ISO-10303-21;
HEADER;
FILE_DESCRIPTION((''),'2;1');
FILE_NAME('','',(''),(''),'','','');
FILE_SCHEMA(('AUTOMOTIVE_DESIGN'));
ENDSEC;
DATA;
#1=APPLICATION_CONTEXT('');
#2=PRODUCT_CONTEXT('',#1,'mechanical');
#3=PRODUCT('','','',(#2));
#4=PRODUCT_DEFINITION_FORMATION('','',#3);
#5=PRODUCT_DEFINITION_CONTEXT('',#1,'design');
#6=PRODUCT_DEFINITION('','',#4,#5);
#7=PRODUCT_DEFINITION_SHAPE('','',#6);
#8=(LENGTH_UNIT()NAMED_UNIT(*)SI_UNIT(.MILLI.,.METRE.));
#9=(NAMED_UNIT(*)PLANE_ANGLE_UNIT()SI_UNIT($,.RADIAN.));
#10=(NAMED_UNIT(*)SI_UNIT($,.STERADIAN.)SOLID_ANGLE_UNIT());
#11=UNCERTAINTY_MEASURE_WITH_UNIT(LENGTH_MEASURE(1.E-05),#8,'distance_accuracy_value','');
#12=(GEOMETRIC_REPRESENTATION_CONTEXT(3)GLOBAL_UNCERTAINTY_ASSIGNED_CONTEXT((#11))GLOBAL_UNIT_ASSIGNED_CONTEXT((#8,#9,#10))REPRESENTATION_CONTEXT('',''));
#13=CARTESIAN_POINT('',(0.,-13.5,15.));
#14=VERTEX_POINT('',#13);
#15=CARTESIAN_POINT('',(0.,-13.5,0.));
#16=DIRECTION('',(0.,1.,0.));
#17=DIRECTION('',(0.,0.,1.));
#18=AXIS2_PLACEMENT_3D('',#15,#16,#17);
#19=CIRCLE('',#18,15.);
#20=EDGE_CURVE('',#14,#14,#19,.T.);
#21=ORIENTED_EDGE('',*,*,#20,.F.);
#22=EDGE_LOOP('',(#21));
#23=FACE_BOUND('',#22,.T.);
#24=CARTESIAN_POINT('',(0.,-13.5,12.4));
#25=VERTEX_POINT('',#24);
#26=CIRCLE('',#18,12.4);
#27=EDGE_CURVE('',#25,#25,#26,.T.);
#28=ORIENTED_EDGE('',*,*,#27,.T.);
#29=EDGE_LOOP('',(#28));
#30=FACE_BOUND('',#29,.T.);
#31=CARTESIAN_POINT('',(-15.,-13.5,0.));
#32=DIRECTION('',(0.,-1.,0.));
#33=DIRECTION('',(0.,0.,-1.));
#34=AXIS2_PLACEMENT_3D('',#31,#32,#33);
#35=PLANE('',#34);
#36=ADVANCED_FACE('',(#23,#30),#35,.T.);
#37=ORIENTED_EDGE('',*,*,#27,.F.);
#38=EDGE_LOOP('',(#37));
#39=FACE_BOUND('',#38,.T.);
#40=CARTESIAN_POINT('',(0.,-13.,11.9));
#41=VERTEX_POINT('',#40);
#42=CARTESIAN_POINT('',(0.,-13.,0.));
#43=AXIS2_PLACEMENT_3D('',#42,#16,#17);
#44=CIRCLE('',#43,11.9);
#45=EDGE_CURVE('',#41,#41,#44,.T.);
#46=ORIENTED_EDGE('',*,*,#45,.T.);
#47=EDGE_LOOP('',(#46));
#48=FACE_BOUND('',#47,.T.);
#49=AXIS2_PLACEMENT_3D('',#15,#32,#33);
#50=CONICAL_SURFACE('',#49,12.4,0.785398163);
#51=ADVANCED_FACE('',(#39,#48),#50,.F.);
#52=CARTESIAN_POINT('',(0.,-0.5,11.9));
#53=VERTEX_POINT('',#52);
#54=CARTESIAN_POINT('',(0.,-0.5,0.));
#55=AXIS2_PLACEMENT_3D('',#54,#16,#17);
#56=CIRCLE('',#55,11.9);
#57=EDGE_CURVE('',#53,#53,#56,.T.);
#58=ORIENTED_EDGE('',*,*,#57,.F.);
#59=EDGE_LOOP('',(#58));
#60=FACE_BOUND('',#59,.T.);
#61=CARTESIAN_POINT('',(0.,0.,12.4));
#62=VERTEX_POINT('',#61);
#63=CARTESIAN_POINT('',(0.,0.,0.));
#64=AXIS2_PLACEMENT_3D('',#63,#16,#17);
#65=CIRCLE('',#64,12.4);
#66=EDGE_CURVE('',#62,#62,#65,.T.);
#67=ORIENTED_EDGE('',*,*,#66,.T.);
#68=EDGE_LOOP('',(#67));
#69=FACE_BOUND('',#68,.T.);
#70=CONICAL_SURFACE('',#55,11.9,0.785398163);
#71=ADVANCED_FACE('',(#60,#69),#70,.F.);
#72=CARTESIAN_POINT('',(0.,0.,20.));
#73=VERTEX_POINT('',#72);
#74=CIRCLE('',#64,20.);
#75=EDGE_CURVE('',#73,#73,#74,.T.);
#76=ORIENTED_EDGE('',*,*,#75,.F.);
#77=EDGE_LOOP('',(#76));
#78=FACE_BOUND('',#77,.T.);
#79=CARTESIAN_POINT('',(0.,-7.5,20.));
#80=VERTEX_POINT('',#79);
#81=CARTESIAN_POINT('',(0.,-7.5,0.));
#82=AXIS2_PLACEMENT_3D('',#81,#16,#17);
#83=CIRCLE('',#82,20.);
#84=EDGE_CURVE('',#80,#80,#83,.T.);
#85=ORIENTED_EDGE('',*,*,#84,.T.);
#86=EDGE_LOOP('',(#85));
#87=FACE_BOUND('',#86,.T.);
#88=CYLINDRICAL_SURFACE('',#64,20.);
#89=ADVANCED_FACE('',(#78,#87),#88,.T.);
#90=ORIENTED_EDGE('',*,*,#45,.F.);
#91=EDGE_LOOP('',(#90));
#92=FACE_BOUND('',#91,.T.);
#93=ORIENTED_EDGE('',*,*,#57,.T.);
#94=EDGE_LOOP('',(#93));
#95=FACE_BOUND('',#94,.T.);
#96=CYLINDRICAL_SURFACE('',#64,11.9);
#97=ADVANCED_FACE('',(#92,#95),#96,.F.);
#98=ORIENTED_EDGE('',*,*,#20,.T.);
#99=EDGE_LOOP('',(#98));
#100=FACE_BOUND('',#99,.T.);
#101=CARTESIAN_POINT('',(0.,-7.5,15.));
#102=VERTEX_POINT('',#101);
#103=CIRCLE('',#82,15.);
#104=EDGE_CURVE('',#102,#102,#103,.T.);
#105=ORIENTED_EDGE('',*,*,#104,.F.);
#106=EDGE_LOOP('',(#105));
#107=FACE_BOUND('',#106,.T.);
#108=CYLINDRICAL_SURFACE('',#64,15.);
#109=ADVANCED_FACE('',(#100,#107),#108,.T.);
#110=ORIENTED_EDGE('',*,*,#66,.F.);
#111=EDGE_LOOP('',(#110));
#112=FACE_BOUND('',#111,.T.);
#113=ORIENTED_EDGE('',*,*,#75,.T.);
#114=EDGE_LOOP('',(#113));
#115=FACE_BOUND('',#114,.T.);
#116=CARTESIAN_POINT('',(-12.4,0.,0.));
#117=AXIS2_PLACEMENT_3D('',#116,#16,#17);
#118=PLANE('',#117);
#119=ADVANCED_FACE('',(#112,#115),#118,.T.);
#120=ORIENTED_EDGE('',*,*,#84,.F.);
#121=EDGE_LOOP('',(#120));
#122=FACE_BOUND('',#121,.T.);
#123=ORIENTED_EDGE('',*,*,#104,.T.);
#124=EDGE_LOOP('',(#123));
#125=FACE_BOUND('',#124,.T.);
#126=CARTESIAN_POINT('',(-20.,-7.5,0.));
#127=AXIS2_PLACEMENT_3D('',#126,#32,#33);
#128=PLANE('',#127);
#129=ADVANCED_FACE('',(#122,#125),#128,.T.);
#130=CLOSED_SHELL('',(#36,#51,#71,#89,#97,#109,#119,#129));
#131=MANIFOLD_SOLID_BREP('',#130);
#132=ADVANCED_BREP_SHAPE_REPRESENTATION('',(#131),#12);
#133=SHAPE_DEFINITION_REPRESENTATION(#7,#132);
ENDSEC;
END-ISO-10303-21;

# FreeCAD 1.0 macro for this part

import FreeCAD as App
import Part
import Sketcher

doc = App.newDocument("Part")
params = doc.addObject("Spreadsheet::Sheet", "Params")
for row, (alias, value) in enumerate([
    ("sketch1_width", "5 mm"),
    ("sketch1_height", "6 mm"),
    ("sketch1_width2", "7.6 mm"),
    ("sketch1_height2", "7.5 mm"),
    ("sketch1_height3", "12.5 mm"),
    ("revolution_angle", "360 deg"),
], start=1):
    params.set(f"A{row}", alias)
    params.set(f"B{row}", "=" + value)
    params.setAlias(f"B{row}", alias)

body = doc.addObject("PartDesign::Body", "Body")

# Sketch on XY plane
sketch1 = body.newObject("Sketcher::SketchObject", "Sketch")
sketch1.AttachmentSupport = (doc.getObject("XY_Plane"), [""])
sketch1.MapMode = "FlatFace"
sketch1.addGeometry(Part.LineSegment(App.Vector(-12.4, 0, 0), App.Vector(-20, 0, 0)), False)
sketch1.addGeometry(Part.LineSegment(App.Vector(-20, 0, 0), App.Vector(-20, -7.5, 0)), False)
sketch1.addGeometry(Part.LineSegment(App.Vector(-20, -7.5, 0), App.Vector(-15, -7.5, 0)), False)
sketch1.addGeometry(Part.LineSegment(App.Vector(-15, -7.5, 0), App.Vector(-15, -13.5, 0)), False)
sketch1.addGeometry(Part.LineSegment(App.Vector(-15, -13.5, 0), App.Vector(-12.4, -13.5, 0)), False)
sketch1.addGeometry(Part.LineSegment(App.Vector(-12.4, -13.5, 0), App.Vector(-11.9, -13, 0)), False)
sketch1.addGeometry(Part.LineSegment(App.Vector(-11.9, -13, 0), App.Vector(-11.9, -0.5, 0)), False)
sketch1.addGeometry(Part.LineSegment(App.Vector(-11.9, -0.5, 0), App.Vector(-12.4, 0, 0)), False)
sketch1.addConstraint(Sketcher.Constraint("Coincident", 0, 2, 1, 1))
sketch1.addConstraint(Sketcher.Constraint("Coincident", 1, 2, 2, 1))
sketch1.addConstraint(Sketcher.Constraint("Coincident", 2, 2, 3, 1))
sketch1.addConstraint(Sketcher.Constraint("Coincident", 3, 2, 4, 1))
sketch1.addConstraint(Sketcher.Constraint("Coincident", 4, 2, 5, 1))
sketch1.addConstraint(Sketcher.Constraint("Coincident", 5, 2, 6, 1))
sketch1.addConstraint(Sketcher.Constraint("Coincident", 6, 2, 7, 1))
sketch1.addConstraint(Sketcher.Constraint("Coincident", 7, 2, 0, 1))
sketch1.addConstraint(Sketcher.Constraint("Horizontal", 0))
sketch1.addConstraint(Sketcher.Constraint("Vertical", 1))
sketch1.addConstraint(Sketcher.Constraint("Horizontal", 2))
sketch1.addConstraint(Sketcher.Constraint("Vertical", 3))
sketch1.addConstraint(Sketcher.Constraint("Horizontal", 4))
sketch1.addConstraint(Sketcher.Constraint("Vertical", 6))
sketch1.addConstraint(Sketcher.Constraint("PointOnObject", 0, 2, -1))
sketch1.addConstraint(Sketcher.Constraint("Perpendicular", 5, 7))
sketch1.addConstraint(Sketcher.Constraint("Vertical", 4, 2, 7, 2))
sketch1.addConstraint(Sketcher.Constraint("Equal", 5, 7))
sketch1.addConstraint(Sketcher.Constraint("DistanceX", 2, 1, 2, 2, 5.0))
sketch1.addConstraint(Sketcher.Constraint("DistanceY", 3, 2, 3, 1, 6.0))
sketch1.addConstraint(Sketcher.Constraint("DistanceX", 0, 2, 0, 1, 7.6))
sketch1.addConstraint(Sketcher.Constraint("DistanceY", 1, 2, 1, 1, 7.5))
sketch1.addConstraint(Sketcher.Constraint("DistanceY", 6, 1, 6, 2, 12.5))
sketch1.addConstraint(Sketcher.Constraint("DistanceX", 0, 2, -1, 1, 20.0))
sketch1.setExpression("Constraints[18]", "Params.sketch1_width")
sketch1.setExpression("Constraints[19]", "Params.sketch1_height")
sketch1.setExpression("Constraints[20]", "Params.sketch1_width2")
sketch1.setExpression("Constraints[21]", "Params.sketch1_height2")
sketch1.setExpression("Constraints[22]", "Params.sketch1_height3")
revolution = body.newObject("PartDesign::Revolution", "Revolution")
revolution.Profile = sketch1
revolution.ReferenceAxis = (sketch1, ["V_Axis"])
revolution.setExpression("Angle", "Params.revolution_angle")

doc.recompute()
